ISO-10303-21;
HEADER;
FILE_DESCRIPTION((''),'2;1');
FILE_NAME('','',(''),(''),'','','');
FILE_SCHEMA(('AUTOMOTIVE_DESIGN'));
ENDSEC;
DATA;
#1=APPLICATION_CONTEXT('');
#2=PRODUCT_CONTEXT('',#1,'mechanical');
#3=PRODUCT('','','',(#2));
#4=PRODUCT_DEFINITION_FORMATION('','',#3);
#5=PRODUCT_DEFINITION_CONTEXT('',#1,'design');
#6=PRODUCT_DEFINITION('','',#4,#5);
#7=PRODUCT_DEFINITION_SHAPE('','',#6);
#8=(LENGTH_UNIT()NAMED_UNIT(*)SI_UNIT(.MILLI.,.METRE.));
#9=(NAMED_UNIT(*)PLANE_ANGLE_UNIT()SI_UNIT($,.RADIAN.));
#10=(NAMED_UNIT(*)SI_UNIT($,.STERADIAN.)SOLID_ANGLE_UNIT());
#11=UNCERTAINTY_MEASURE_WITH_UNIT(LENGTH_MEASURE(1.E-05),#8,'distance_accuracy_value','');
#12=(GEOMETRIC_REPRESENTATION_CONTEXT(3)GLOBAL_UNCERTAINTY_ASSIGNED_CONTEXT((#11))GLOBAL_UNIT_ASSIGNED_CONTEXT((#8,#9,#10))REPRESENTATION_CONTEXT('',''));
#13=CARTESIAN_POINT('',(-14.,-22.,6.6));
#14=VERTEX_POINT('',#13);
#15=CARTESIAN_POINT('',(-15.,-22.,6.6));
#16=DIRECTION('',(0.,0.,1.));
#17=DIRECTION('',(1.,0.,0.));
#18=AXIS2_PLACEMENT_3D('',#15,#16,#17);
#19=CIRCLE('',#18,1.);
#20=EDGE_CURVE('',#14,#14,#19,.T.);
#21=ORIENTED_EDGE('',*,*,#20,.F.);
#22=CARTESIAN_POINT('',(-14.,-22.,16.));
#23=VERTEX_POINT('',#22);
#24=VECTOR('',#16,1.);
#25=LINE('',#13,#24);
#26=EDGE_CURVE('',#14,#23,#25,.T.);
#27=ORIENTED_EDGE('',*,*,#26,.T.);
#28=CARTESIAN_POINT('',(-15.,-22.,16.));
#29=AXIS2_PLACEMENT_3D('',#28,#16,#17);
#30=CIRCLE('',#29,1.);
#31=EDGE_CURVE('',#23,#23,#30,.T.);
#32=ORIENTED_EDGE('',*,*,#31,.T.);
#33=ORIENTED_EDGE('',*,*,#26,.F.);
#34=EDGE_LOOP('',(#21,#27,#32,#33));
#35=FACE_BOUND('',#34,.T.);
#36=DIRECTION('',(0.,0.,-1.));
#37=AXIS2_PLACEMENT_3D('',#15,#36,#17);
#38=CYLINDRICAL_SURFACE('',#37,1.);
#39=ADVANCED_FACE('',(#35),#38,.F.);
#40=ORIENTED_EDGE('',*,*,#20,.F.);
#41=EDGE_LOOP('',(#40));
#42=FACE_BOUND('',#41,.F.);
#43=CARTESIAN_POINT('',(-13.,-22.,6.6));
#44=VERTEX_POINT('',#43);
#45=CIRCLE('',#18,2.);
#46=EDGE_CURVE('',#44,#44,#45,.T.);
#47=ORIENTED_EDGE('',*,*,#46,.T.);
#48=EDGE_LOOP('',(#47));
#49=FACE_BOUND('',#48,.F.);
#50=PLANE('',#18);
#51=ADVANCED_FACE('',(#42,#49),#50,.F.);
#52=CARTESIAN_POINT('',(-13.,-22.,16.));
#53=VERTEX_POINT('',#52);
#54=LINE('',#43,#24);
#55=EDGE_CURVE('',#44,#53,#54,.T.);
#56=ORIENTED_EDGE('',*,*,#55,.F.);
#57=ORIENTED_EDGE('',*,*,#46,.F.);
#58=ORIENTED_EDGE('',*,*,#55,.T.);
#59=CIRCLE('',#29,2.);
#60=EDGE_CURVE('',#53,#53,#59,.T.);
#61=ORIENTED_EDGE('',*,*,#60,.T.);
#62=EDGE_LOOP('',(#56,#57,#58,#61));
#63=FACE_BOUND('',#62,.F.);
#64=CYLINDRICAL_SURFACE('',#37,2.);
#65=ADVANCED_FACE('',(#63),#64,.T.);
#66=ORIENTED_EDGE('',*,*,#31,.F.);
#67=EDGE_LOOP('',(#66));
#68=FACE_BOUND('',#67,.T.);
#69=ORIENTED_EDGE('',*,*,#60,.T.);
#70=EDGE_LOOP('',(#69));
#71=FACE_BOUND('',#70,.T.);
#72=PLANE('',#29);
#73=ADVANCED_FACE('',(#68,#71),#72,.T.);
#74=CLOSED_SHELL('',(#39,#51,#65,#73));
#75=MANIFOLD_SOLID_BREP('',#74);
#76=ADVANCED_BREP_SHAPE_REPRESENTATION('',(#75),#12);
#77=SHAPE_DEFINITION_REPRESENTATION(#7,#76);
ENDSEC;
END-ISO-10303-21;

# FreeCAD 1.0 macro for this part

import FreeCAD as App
import Part
import Sketcher

V = App.Vector
Q = App.Units.Quantity

doc = App.newDocument("Part")
body = doc.addObject("PartDesign::Body", "Body")

sketch1 = doc.addObject("Sketcher::SketchObject", "Sketch")
body.addObject(sketch1)
sketch1.AttachmentSupport = (doc.XY_Plane, [""])
sketch1.MapMode = "FlatFace"
sketch1.AttachmentOffset = App.Placement(V(0, 0, 6.6), App.Rotation())
sketch1.addGeometry(Part.Circle(V(36, -22, 0), V(0, 0, 1), 1), False)
sketch1.addConstraint(Sketcher.Constraint("Diameter", 0, Q("2 mm")))
sketch1.addConstraint(Sketcher.Constraint("DistanceX", -1, 1, 0, 3, Q("36 mm")))
sketch1.addConstraint(Sketcher.Constraint("DistanceY", 0, 3, -1, 1, Q("22 mm")))
pad1 = doc.addObject("PartDesign::Pad", "Pad")
body.addObject(pad1)
pad1.Profile = sketch1
pad1.Length = 9.4
body2 = doc.addObject("PartDesign::Body", "Body001")

sketch2 = doc.addObject("Sketcher::SketchObject", "Sketch001")
body2.addObject(sketch2)
sketch2.AttachmentSupport = (doc.getObject("XY_Plane001"), [""])
sketch2.MapMode = "FlatFace"
sketch2.AttachmentOffset = App.Placement(V(0, 0, 6.6), App.Rotation())
sketch2.addGeometry(Part.Circle(V(36, -22, 0), V(0, 0, 1), 2), False)
sketch2.addConstraint(Sketcher.Constraint("Diameter", 0, Q("4 mm")))
sketch2.addConstraint(Sketcher.Constraint("DistanceX", -1, 1, 0, 3, Q("36 mm")))
sketch2.addConstraint(Sketcher.Constraint("DistanceY", 0, 3, -1, 1, Q("22 mm")))
pad2 = doc.addObject("PartDesign::Pad", "Pad001")
body2.addObject(pad2)
pad2.Profile = sketch2
pad2.Length = 9.4
doc.recompute()

boolean = doc.addObject("PartDesign::Boolean", "Boolean")
body2.addObject(boolean)
boolean.Type = "Cut"
boolean.addObjects([body])
body3 = doc.addObject("PartDesign::Body", "Body002")
doc.recompute()

body2.Placement = App.Placement(V(-51, 0, 0), App.Rotation(V(0, 0, 1), 0))
boolean2 = doc.addObject("PartDesign::Boolean", "Boolean001")
body3.addObject(boolean2)
boolean2.Type = "Fuse"
boolean2.addObjects([body2])

doc.recompute()
